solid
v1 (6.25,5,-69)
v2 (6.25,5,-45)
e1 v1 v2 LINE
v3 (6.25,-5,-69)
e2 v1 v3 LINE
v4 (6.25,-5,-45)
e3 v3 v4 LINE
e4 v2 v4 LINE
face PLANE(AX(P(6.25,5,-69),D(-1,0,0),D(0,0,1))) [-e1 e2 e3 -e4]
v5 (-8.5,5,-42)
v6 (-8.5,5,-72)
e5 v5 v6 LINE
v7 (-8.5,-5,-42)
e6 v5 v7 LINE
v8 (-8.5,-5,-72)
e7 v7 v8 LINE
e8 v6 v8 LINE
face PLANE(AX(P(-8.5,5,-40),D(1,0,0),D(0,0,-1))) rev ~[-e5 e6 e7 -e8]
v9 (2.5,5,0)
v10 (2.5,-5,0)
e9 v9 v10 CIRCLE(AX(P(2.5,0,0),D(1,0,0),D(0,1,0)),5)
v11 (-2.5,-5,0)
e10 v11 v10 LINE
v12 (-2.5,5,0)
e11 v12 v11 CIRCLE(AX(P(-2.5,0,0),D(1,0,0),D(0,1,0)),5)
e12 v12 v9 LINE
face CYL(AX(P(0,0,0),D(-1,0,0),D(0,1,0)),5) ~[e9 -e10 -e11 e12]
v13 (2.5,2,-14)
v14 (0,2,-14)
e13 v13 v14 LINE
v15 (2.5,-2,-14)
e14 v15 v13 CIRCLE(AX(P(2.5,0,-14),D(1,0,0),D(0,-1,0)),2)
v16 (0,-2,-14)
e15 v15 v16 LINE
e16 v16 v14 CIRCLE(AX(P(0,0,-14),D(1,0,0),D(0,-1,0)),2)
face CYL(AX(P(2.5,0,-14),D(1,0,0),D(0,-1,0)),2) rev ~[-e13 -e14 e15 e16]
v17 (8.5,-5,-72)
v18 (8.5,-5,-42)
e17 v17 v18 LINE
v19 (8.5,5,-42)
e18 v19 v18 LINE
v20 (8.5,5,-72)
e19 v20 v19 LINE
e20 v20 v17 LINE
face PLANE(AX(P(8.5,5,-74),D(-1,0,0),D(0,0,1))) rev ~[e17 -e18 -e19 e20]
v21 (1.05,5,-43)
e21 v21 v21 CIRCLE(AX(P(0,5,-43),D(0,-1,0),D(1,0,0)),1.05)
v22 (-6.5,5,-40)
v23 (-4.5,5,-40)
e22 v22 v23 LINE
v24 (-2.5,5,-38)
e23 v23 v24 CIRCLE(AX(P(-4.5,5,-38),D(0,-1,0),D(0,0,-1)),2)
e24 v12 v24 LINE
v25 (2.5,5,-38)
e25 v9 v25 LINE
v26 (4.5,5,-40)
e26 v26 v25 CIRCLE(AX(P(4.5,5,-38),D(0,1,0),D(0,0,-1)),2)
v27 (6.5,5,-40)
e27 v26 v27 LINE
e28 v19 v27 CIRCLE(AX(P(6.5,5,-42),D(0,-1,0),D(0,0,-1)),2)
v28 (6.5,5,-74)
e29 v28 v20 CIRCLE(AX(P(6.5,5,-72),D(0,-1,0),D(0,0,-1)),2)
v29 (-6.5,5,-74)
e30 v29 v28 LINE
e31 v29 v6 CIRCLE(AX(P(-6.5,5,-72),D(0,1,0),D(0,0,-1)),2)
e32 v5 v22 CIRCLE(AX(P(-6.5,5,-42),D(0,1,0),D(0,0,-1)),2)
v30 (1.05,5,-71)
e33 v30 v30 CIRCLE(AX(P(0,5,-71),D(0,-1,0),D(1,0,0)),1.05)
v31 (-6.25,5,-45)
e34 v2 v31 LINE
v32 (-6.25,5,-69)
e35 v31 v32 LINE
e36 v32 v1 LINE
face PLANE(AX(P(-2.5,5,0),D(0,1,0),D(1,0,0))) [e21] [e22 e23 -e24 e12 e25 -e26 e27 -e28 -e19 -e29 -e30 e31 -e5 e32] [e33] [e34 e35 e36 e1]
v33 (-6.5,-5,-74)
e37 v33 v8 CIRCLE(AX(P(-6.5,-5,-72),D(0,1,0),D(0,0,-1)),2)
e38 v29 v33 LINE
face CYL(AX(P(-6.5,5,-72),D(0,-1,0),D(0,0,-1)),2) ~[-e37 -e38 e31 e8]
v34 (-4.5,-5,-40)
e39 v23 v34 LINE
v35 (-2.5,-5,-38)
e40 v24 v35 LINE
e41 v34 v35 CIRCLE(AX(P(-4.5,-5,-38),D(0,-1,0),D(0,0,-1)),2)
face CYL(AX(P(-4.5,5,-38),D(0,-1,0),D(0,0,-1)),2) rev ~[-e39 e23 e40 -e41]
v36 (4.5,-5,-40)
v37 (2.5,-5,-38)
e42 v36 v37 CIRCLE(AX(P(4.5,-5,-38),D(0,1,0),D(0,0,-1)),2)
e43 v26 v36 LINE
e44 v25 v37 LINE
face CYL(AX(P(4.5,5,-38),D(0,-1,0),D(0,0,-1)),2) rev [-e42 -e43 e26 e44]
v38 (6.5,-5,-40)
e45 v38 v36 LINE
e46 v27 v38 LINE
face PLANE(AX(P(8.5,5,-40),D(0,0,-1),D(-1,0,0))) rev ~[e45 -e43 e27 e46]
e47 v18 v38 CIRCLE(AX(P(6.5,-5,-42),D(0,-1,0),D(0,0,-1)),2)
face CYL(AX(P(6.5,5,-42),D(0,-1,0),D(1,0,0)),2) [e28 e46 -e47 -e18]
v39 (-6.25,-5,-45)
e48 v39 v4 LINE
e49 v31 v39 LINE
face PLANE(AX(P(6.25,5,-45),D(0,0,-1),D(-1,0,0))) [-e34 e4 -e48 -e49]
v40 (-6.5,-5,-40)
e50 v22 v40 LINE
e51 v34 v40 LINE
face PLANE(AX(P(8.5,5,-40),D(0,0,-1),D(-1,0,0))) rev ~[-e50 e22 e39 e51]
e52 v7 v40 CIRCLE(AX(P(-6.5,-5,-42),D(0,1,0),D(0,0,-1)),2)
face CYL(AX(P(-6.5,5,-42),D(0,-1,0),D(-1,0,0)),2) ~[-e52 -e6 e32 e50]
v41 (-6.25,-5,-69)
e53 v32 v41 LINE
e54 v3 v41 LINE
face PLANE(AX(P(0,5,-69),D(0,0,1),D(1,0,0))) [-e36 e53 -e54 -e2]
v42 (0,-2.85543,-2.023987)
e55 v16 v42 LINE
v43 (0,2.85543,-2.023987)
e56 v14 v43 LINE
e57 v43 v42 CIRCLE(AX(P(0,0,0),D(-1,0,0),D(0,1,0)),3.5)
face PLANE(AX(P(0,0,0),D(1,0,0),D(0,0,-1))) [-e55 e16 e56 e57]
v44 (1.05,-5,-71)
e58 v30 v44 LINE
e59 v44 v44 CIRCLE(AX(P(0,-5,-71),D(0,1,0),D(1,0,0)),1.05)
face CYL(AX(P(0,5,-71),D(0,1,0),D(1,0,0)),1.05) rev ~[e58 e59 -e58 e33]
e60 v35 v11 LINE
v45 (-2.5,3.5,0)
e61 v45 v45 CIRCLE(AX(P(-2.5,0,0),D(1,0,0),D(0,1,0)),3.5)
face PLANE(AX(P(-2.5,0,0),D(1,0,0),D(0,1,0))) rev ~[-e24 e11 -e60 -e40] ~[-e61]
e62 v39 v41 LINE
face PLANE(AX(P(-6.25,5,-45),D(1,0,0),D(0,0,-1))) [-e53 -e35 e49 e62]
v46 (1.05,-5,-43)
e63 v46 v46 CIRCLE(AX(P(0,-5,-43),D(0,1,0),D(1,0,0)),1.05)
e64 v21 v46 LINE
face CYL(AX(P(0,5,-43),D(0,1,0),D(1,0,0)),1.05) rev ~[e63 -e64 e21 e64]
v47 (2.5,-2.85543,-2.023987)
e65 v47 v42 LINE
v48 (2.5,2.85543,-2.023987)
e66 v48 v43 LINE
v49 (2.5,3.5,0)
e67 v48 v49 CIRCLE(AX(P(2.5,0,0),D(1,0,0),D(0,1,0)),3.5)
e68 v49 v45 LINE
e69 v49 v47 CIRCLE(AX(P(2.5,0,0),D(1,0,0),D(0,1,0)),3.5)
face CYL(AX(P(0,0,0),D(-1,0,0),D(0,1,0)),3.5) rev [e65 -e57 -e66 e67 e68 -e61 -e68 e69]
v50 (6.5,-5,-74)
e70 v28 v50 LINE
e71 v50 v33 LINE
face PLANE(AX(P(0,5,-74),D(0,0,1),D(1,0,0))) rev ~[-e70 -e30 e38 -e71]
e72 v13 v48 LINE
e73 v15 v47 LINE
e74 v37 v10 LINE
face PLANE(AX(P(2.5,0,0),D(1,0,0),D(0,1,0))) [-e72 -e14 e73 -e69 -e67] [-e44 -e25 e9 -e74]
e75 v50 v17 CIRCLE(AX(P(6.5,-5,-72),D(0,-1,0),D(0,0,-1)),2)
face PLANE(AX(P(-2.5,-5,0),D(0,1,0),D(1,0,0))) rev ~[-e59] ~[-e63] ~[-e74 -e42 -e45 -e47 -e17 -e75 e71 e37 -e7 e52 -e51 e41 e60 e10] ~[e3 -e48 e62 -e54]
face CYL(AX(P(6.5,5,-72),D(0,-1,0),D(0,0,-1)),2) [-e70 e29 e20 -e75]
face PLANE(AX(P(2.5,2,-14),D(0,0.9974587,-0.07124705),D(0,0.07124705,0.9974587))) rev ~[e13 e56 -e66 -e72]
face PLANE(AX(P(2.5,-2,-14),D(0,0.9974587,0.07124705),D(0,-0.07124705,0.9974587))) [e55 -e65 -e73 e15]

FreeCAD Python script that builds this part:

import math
import FreeCAD as App
import Part
import Sketcher

V = App.Vector


def edges_at(feature, points):
    """Names of the edges that pass closest to the given points."""
    edges = feature.Shape.Edges
    near = lambda p: min(range(len(edges)), key=lambda i: edges[i].distToShape(Part.Vertex(*p))[0])
    return sorted({f"Edge{near(p) + 1}" for p in points})


def add_polygon(sketch, points):
    """Adds a closed chain of lines whose ends are joined by coincident constraints."""
    first, n = sketch.GeometryCount, len(points)
    for a, b in zip(points, points[1:] + points[:1]):
        sketch.addGeometry(Part.LineSegment(App.Vector(*a, 0), App.Vector(*b, 0)), False)
    for i in range(n):
        sketch.addConstraint(Sketcher.Constraint("Coincident", first + i, 2, first + (i + 1) % n, 1))

doc = App.newDocument("Part")
body = doc.addObject("PartDesign::Body", "Body")

# Sketch on YZ plane
sketch1 = body.newObject("Sketcher::SketchObject", "Sketch")
sketch1.AttachmentSupport = (doc.getObject("YZ_Plane"), [""])
sketch1.MapMode = "FlatFace"
sketch1.addGeometry(Part.LineSegment(V(5, -40, 0), V(5, 0, 0)), False)
sketch1.addGeometry(Part.ArcOfCircle(Part.Circle(V(0, 0, 0), V(0, 0, 1), 5), math.radians(0), math.radians(180)), False)
sketch1.addGeometry(Part.LineSegment(V(-5, 0, 0), V(-5, -40, 0)), False)
sketch1.addGeometry(Part.LineSegment(V(-5, -40, 0), V(5, -40, 0)), False)
sketch1.addGeometry(Part.Circle(V(0, 0, 0), V(0, 0, 1), 3.5), False)
sketch1.addConstraint(Sketcher.Constraint("Tangent", 0, 2, 1, 1))
sketch1.addConstraint(Sketcher.Constraint("Tangent", 1, 2, 2, 1))
sketch1.addConstraint(Sketcher.Constraint("Coincident", 2, 2, 3, 1))
sketch1.addConstraint(Sketcher.Constraint("Coincident", 3, 2, 0, 1))
sketch1.addConstraint(Sketcher.Constraint("Vertical", 0))
sketch1.addConstraint(Sketcher.Constraint("Vertical", 2))
sketch1.addConstraint(Sketcher.Constraint("Horizontal", 3))
sketch1.addConstraint(Sketcher.Constraint("Coincident", 1, 3, -1, 1))
sketch1.addConstraint(Sketcher.Constraint("Coincident", 4, 3, -1, 1))
sketch1.addConstraint(Sketcher.Constraint("Diameter", 4, 7.0))
sketch1.addConstraint(Sketcher.Constraint("Radius", 1, 5.0))
sketch1.addConstraint(Sketcher.Constraint("DistanceY", 0, 1, 0, 2, 40.0))
pad1 = body.newObject("PartDesign::Pad", "Pad")
pad1.Profile = sketch1
pad1.Length = 5
pad1.Midplane = True

# Sketch on XZ plane
sketch2 = body.newObject("Sketcher::SketchObject", "Sketch001")
sketch2.AttachmentSupport = (doc.getObject("XZ_Plane"), [""])
sketch2.MapMode = "FlatFace"
sketch2.AttachmentOffset = App.Placement(V(0, 0, -5), App.Rotation())
add_polygon(sketch2, [(8.5, -74), (-8.5, -74), (-8.5, -40), (8.5, -40)])  # lines 0-3
sketch2.addGeometry(Part.Circle(V(0, -43, 0), V(0, 0, 1), 1.1), False)  # 4
add_polygon(sketch2, [(6.2, -45), (-6.2, -45), (-6.2, -69), (6.2, -69)])  # lines 5-8
sketch2.addGeometry(Part.Circle(V(0, -71, 0), V(0, 0, 1), 1.1), False)  # 9
sketch2.addConstraint(Sketcher.Constraint("Horizontal", 0))
sketch2.addConstraint(Sketcher.Constraint("Vertical", 1))
sketch2.addConstraint(Sketcher.Constraint("Horizontal", 2))
sketch2.addConstraint(Sketcher.Constraint("Vertical", 3))
sketch2.addConstraint(Sketcher.Constraint("Horizontal", 5))
sketch2.addConstraint(Sketcher.Constraint("Vertical", 6))
sketch2.addConstraint(Sketcher.Constraint("Horizontal", 7))
sketch2.addConstraint(Sketcher.Constraint("Vertical", 8))
sketch2.addConstraint(Sketcher.Constraint("Equal", 4, 9))
sketch2.addConstraint(Sketcher.Constraint("PointOnObject", 4, 3, -2))
sketch2.addConstraint(Sketcher.Constraint("PointOnObject", 9, 3, -2))
sketch2.addConstraint(Sketcher.Constraint("Diameter", 4, 2.1))
sketch2.addConstraint(Sketcher.Constraint("DistanceX", 0, 2, 0, 1, 17.0))
sketch2.addConstraint(Sketcher.Constraint("DistanceY", 1, 1, 1, 2, 34.0))
sketch2.addConstraint(Sketcher.Constraint("DistanceY", 6, 2, 6, 1, 24.0))
sketch2.addConstraint(Sketcher.Constraint("DistanceX", 5, 2, 5, 1, 12.5))
sketch2.addConstraint(Sketcher.Constraint("DistanceY", 9, 3, 4, 3, 28.0))
sketch2.addConstraint(Sketcher.Constraint("DistanceY", 4, 3, -1, 1, 43.0))
sketch2.addConstraint(Sketcher.Constraint("DistanceY", 0, 2, -1, 1, 74.0))
sketch2.addConstraint(Sketcher.Constraint("DistanceY", 5, 2, -1, 1, 45.0))
sketch2.addConstraint(Sketcher.Constraint("DistanceX", 0, 2, -1, 1, 8.5))
sketch2.addConstraint(Sketcher.Constraint("DistanceX", 5, 2, -1, 1, 6.25))
pad2 = body.newObject("PartDesign::Pad", "Pad001")
pad2.Profile = sketch2
pad2.Length = 10
doc.recompute()

fillet = body.newObject("PartDesign::Fillet", "Fillet")
fillet.Base = (pad2, edges_at(pad2, [
    (2.5, 0, -40),
    (8.5, 0, -40),
    (8.5, 0, -74),
    (-8.5, 0, -74),
    (-8.5, 0, -40),
    (-2.5, 0, -40),
]))
fillet.Radius = 2

# Sketch on YZ plane
sketch3 = body.newObject("Sketcher::SketchObject", "Sketch002")
sketch3.AttachmentSupport = (doc.getObject("YZ_Plane"), [""])
sketch3.MapMode = "FlatFace"
sketch3.AttachmentOffset = App.Placement(V(0, 0, 2.5), App.Rotation())
sketch3.addGeometry(Part.LineSegment(V(-3, -0.4, 0), V(-2, -14, 0)), False)
sketch3.addGeometry(Part.ArcOfCircle(Part.Circle(V(0, -14, 0), V(0, 0, 1), 2), math.radians(180), math.radians(360)), False)
sketch3.addGeometry(Part.LineSegment(V(2, -14, 0), V(3, -0.4, 0)), False)
sketch3.addGeometry(Part.ArcOfCircle(Part.Circle(V(0, 0, 0), V(0, 0, 1), 3), math.radians(-8), math.radians(188)), False)
sketch3.addConstraint(Sketcher.Constraint("Coincident", 0, 2, 1, 1))
sketch3.addConstraint(Sketcher.Constraint("Coincident", 1, 2, 2, 1))
sketch3.addConstraint(Sketcher.Constraint("Coincident", 2, 2, 3, 1))
sketch3.addConstraint(Sketcher.Constraint("Coincident", 3, 2, 0, 1))
sketch3.addConstraint(Sketcher.Constraint("Coincident", 3, 3, -1, 1))
sketch3.addConstraint(Sketcher.Constraint("Symmetric", 0, 2, 1, 2, -2))
sketch3.addConstraint(Sketcher.Constraint("Horizontal", 1, 3, 0, 2))
sketch3.addConstraint(Sketcher.Constraint("Horizontal", 2, 2, 3, 2))
sketch3.addConstraint(Sketcher.Constraint("Radius", 1, 2.0))
sketch3.addConstraint(Sketcher.Constraint("Radius", 3, 3.0))
sketch3.addConstraint(Sketcher.Constraint("DistanceY", 1, 3, -1, 1, 14.0))
sketch3.addConstraint(Sketcher.Constraint("DistanceX", 3, 2, 2, 2, 5.939))
pocket1 = body.newObject("PartDesign::Pocket", "Pocket")
pocket1.Profile = sketch3
pocket1.Length = 2.5

doc.recompute()
